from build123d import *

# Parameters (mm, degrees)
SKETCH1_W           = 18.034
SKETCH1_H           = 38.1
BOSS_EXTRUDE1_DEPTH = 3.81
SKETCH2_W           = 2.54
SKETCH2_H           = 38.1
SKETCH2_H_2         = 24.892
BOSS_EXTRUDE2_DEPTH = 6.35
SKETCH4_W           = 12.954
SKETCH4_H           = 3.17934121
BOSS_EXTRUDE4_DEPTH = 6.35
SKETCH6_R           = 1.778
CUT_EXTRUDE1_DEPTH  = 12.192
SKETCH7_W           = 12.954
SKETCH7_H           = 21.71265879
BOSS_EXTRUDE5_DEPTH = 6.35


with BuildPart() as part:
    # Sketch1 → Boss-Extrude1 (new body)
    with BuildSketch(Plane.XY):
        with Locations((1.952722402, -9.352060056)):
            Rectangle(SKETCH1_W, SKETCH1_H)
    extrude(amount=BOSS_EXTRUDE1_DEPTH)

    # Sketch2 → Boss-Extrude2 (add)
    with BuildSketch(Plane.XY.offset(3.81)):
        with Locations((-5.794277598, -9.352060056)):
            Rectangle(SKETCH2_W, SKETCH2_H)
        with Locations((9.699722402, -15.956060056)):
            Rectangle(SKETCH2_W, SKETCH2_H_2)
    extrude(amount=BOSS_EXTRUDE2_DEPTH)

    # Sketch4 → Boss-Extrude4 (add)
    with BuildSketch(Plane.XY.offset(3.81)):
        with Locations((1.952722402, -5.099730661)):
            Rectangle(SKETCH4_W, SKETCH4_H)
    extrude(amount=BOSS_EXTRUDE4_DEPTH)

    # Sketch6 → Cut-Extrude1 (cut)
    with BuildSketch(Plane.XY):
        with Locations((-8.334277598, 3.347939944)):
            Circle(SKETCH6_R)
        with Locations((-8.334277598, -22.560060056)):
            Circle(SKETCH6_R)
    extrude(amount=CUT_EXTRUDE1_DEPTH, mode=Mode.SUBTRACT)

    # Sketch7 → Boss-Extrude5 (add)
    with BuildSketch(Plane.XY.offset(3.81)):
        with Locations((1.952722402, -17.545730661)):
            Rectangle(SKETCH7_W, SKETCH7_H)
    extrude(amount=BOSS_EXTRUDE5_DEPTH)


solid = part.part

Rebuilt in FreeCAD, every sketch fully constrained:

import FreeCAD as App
import Part
import Sketcher
from FreeCAD import Vector
Q = App.Units.Quantity

doc = App.newDocument("Part")
body = doc.addObject("PartDesign::Body", "Body")

# Sketch on XY plane
sketch1 = doc.addObject("Sketcher::SketchObject", "Sketch")
body.addObject(sketch1)
sketch1.AttachmentSupport = (doc.XY_Plane, [""])
sketch1.MapMode = "FlatFace"
sketch1.addGeometry(Part.LineSegment(Vector(-7, 10, 0), Vector(-7, -28, 0)), False)
sketch1.addGeometry(Part.LineSegment(Vector(-7, -28, 0), Vector(11, -28, 0)), False)
sketch1.addGeometry(Part.LineSegment(Vector(11, -28, 0), Vector(11, 10, 0)), False)
sketch1.addGeometry(Part.LineSegment(Vector(11, 10, 0), Vector(-7, 10, 0)), False)
sketch1.addConstraint(Sketcher.Constraint("Coincident", 0, 2, 1, 1))
sketch1.addConstraint(Sketcher.Constraint("Coincident", 1, 2, 2, 1))
sketch1.addConstraint(Sketcher.Constraint("Coincident", 2, 2, 3, 1))
sketch1.addConstraint(Sketcher.Constraint("Coincident", 3, 2, 0, 1))
sketch1.addConstraint(Sketcher.Constraint("Vertical", 0))
sketch1.addConstraint(Sketcher.Constraint("Horizontal", 1))
sketch1.addConstraint(Sketcher.Constraint("Vertical", 2))
sketch1.addConstraint(Sketcher.Constraint("Horizontal", 3))
sketch1.addConstraint(Sketcher.Constraint("DistanceY", 0, 2, 0, 1, Q("1.5 in")))
sketch1.addConstraint(Sketcher.Constraint("DistanceX", 1, 1, 1, 2, Q("0.71 in")))
sketch1.addConstraint(Sketcher.Constraint("DistanceY", 0, 2, -1, 1, 28.40206))
sketch1.addConstraint(Sketcher.Constraint("DistanceX", 0, 2, -1, 1, 7.064278))
pad1 = doc.addObject("PartDesign::Pad", "Pad")
body.addObject(pad1)
pad1.Profile = sketch1
pad1.Length = Q("0.15 in")

# Sketch on XY plane
sketch2 = doc.addObject("Sketcher::SketchObject", "Sketch001")
body.addObject(sketch2)
sketch2.AttachmentSupport = (doc.XY_Plane, [""])
sketch2.MapMode = "FlatFace"
sketch2.AttachmentOffset = App.Placement(Vector(0, 0, 0.15 * 25.4), App.Rotation())
sketch2.addGeometry(Part.LineSegment(Vector(-7.1, 9.7, 0), Vector(-7.1, -28.4, 0)), False)
sketch2.addGeometry(Part.LineSegment(Vector(-7.1, -28.4, 0), Vector(-4.5, -28.4, 0)), False)
sketch2.addGeometry(Part.LineSegment(Vector(-4.5, -28.4, 0), Vector(-4.5, 9.7, 0)), False)
sketch2.addGeometry(Part.LineSegment(Vector(-4.5, 9.7, 0), Vector(-7.1, 9.7, 0)), False)
sketch2.addGeometry(Part.LineSegment(Vector(8.4, -3.5, 0), Vector(8.4, -28.4, 0)), False)
sketch2.addGeometry(Part.LineSegment(Vector(8.4, -28.4, 0), Vector(11, -28.4, 0)), False)
sketch2.addGeometry(Part.LineSegment(Vector(11, -28.4, 0), Vector(11, -3.5, 0)), False)
sketch2.addGeometry(Part.LineSegment(Vector(11, -3.5, 0), Vector(8.4, -3.5, 0)), False)
sketch2.addConstraint(Sketcher.Constraint("Coincident", 0, 2, 1, 1))
sketch2.addConstraint(Sketcher.Constraint("Coincident", 1, 2, 2, 1))
sketch2.addConstraint(Sketcher.Constraint("Coincident", 2, 2, 3, 1))
sketch2.addConstraint(Sketcher.Constraint("Coincident", 3, 2, 0, 1))
sketch2.addConstraint(Sketcher.Constraint("Coincident", 4, 2, 5, 1))
sketch2.addConstraint(Sketcher.Constraint("Coincident", 5, 2, 6, 1))
sketch2.addConstraint(Sketcher.Constraint("Coincident", 6, 2, 7, 1))
sketch2.addConstraint(Sketcher.Constraint("Coincident", 7, 2, 4, 1))
sketch2.addConstraint(Sketcher.Constraint("Vertical", 0))
sketch2.addConstraint(Sketcher.Constraint("Horizontal", 1))
sketch2.addConstraint(Sketcher.Constraint("Vertical", 2))
sketch2.addConstraint(Sketcher.Constraint("Horizontal", 3))
sketch2.addConstraint(Sketcher.Constraint("Vertical", 4))
sketch2.addConstraint(Sketcher.Constraint("Horizontal", 5))
sketch2.addConstraint(Sketcher.Constraint("Vertical", 6))
sketch2.addConstraint(Sketcher.Constraint("Horizontal", 7))
sketch2.addConstraint(Sketcher.Constraint("Horizontal", 1, 2, 4, 2))
sketch2.addConstraint(Sketcher.Constraint("Equal", 3, 5))
sketch2.addConstraint(Sketcher.Constraint("DistanceX", 1, 1, 1, 2, Q("0.1 in")))
sketch2.addConstraint(Sketcher.Constraint("DistanceY", 0, 2, 0, 1, Q("1.5 in")))
sketch2.addConstraint(Sketcher.Constraint("DistanceY", 4, 2, 4, 1, Q("0.98 in")))
sketch2.addConstraint(Sketcher.Constraint("DistanceX", 1, 2, 4, 2, Q("0.51 in")))
sketch2.addConstraint(Sketcher.Constraint("DistanceY", 0, 2, -1, 1, 28.40206))
sketch2.addConstraint(Sketcher.Constraint("DistanceX", 0, 2, -1, 1, 7.064278))
pad2 = doc.addObject("PartDesign::Pad", "Pad001")
body.addObject(pad2)
pad2.Profile = sketch2
pad2.Length = Q("0.25 in")

# Sketch on XY plane
sketch3 = doc.addObject("Sketcher::SketchObject", "Sketch002")
body.addObject(sketch3)
sketch3.AttachmentSupport = (doc.XY_Plane, [""])
sketch3.MapMode = "FlatFace"
sketch3.AttachmentOffset = App.Placement(Vector(0, 0, 0.15 * 25.4), App.Rotation())
sketch3.addGeometry(Part.LineSegment(Vector(-4.5, -3.5, 0), Vector(-4.5, -6.7, 0)), False)
sketch3.addGeometry(Part.LineSegment(Vector(-4.5, -6.7, 0), Vector(8.4, -6.7, 0)), False)
sketch3.addGeometry(Part.LineSegment(Vector(8.4, -6.7, 0), Vector(8.4, -3.5, 0)), False)
sketch3.addGeometry(Part.LineSegment(Vector(8.4, -3.5, 0), Vector(-4.5, -3.5, 0)), False)
sketch3.addConstraint(Sketcher.Constraint("Coincident", 0, 2, 1, 1))
sketch3.addConstraint(Sketcher.Constraint("Coincident", 1, 2, 2, 1))
sketch3.addConstraint(Sketcher.Constraint("Coincident", 2, 2, 3, 1))
sketch3.addConstraint(Sketcher.Constraint("Coincident", 3, 2, 0, 1))
sketch3.addConstraint(Sketcher.Constraint("Vertical", 0))
sketch3.addConstraint(Sketcher.Constraint("Horizontal", 1))
sketch3.addConstraint(Sketcher.Constraint("Vertical", 2))
sketch3.addConstraint(Sketcher.Constraint("Horizontal", 3))
sketch3.addConstraint(Sketcher.Constraint("DistanceX", 1, 1, 1, 2, Q("0.51 in")))
sketch3.addConstraint(Sketcher.Constraint("DistanceY", 0, 2, 0, 1, 3.179341))
sketch3.addConstraint(Sketcher.Constraint("DistanceY", 0, 2, -1, 1, 6.689401))
sketch3.addConstraint(Sketcher.Constraint("DistanceX", 0, 2, -1, 1, 4.524278))
pad3 = doc.addObject("PartDesign::Pad", "Pad002")
body.addObject(pad3)
pad3.Profile = sketch3
pad3.Length = Q("0.25 in")

# Sketch on XY plane
sketch4 = doc.addObject("Sketcher::SketchObject", "Sketch003")
body.addObject(sketch4)
sketch4.AttachmentSupport = (doc.XY_Plane, [""])
sketch4.MapMode = "FlatFace"
sketch4.addGeometry(Part.Circle(Vector(-8.3, 3.3, 0), Vector(0, 0, 1), 1.8), False)
sketch4.addGeometry(Part.Circle(Vector(-8.3, -22.6, 0), Vector(0, 0, 1), 1.8), False)
sketch4.addConstraint(Sketcher.Constraint("Equal", 0, 1))
sketch4.addConstraint(Sketcher.Constraint("Vertical", 0, 3, 1, 3))
sketch4.addConstraint(Sketcher.Constraint("Diameter", 0, Q("0.14 in")))
sketch4.addConstraint(Sketcher.Constraint("DistanceY", 1, 3, 0, 3, Q("1.02 in")))
sketch4.addConstraint(Sketcher.Constraint("DistanceY", -1, 1, 0, 3, 3.34794))
sketch4.addConstraint(Sketcher.Constraint("DistanceX", 0, 3, -1, 1, 8.334278))
pocket1 = doc.addObject("PartDesign::Pocket", "Pocket")
body.addObject(pocket1)
pocket1.Profile = sketch4
pocket1.Length = Q("0.48 in")
pocket1.Reversed = True

# Sketch on XY plane
sketch5 = doc.addObject("Sketcher::SketchObject", "Sketch004")
body.addObject(sketch5)
sketch5.AttachmentSupport = (doc.XY_Plane, [""])
sketch5.MapMode = "FlatFace"
sketch5.AttachmentOffset = App.Placement(Vector(0, 0, 0.15 * 25.4), App.Rotation())
sketch5.addGeometry(Part.LineSegment(Vector(-5, -7, 0), Vector(-5, -28, 0)), False)
sketch5.addGeometry(Part.LineSegment(Vector(-5, -28, 0), Vector(8, -28, 0)), False)
sketch5.addGeometry(Part.LineSegment(Vector(8, -28, 0), Vector(8, -7, 0)), False)
sketch5.addGeometry(Part.LineSegment(Vector(8, -7, 0), Vector(-5, -7, 0)), False)
sketch5.addConstraint(Sketcher.Constraint("Coincident", 0, 2, 1, 1))
sketch5.addConstraint(Sketcher.Constraint("Coincident", 1, 2, 2, 1))
sketch5.addConstraint(Sketcher.Constraint("Coincident", 2, 2, 3, 1))
sketch5.addConstraint(Sketcher.Constraint("Coincident", 3, 2, 0, 1))
sketch5.addConstraint(Sketcher.Constraint("Vertical", 0))
sketch5.addConstraint(Sketcher.Constraint("Horizontal", 1))
sketch5.addConstraint(Sketcher.Constraint("Vertical", 2))
sketch5.addConstraint(Sketcher.Constraint("Horizontal", 3))
sketch5.addConstraint(Sketcher.Constraint("DistanceX", 1, 1, 1, 2, Q("0.51 in")))
sketch5.addConstraint(Sketcher.Constraint("DistanceY", 0, 2, 0, 1, 21.712659))
sketch5.addConstraint(Sketcher.Constraint("DistanceY", 2, 2, -1, 1, 6.689401))
sketch5.addConstraint(Sketcher.Constraint("DistanceX", 0, 2, -1, 1, 4.524278))
pad4 = doc.addObject("PartDesign::Pad", "Pad003")
body.addObject(pad4)
pad4.Profile = sketch5
pad4.Length = Q("0.25 in")

doc.recompute()
